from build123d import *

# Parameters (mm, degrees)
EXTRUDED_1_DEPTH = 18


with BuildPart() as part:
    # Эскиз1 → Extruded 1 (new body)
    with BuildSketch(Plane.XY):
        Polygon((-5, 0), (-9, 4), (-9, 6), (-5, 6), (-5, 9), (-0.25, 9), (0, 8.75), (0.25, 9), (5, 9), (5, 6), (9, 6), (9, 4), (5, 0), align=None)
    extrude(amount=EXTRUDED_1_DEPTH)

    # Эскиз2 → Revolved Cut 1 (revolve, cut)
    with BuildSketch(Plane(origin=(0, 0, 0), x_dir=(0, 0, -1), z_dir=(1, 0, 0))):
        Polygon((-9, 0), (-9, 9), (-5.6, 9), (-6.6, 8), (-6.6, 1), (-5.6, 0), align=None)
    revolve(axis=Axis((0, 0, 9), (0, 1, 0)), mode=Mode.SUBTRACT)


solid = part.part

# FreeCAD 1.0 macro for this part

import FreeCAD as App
import Part
import Sketcher

V = App.Vector
Q = App.Units.Quantity


def add_polygon(sketch, points):
    """Adds a closed chain of lines whose ends are joined by coincident constraints."""
    first, n = sketch.GeometryCount, len(points)
    for a, b in zip(points, points[1:] + points[:1]):
        sketch.addGeometry(Part.LineSegment(App.Vector(*a, 0), App.Vector(*b, 0)), False)
    for i in range(n):
        sketch.addConstraint(Sketcher.Constraint("Coincident", first + i, 2, first + (i + 1) % n, 1))

doc = App.newDocument("Part")
body = doc.addObject("PartDesign::Body", "Body")

# Sketch on XY plane
sketch1 = body.newObject("Sketcher::SketchObject", "Sketch")
sketch1.AttachmentSupport = (doc.getObject("XY_Plane"), [""])
sketch1.MapMode = "FlatFace"
add_polygon(sketch1, [(-9, 4), (-5, 0), (5, 0), (9, 4), (9, 6), (5, 6), (5, 9), (0.25, 9), (0, 8.75), (-0.25, 9), (-5, 9), (-5, 6), (-9, 6)])  # lines 0-12
sketch1.addConstraint([
    Sketcher.Constraint("Horizontal", 1),
    Sketcher.Constraint("Vertical", 3),
    Sketcher.Constraint("Horizontal", 4),
    Sketcher.Constraint("Vertical", 5),
    Sketcher.Constraint("Horizontal", 6),
    Sketcher.Constraint("Horizontal", 9),
    Sketcher.Constraint("Vertical", 10),
    Sketcher.Constraint("Horizontal", 11),
    Sketcher.Constraint("Vertical", 12),
    Sketcher.Constraint("Symmetric", 0, 2, 1, 2, -1, 1),
    Sketcher.Constraint("Symmetric", 6, 2, 8, 2, -2),
    Sketcher.Constraint("Symmetric", 4, 2, 10, 2, -2),
    Sketcher.Constraint("Symmetric", 2, 2, 12, 2, -2),
    Sketcher.Constraint("PointOnObject", 7, 2, -2),
    Sketcher.Constraint("Perpendicular", 0, 2),
    Sketcher.Constraint("Parallel", 2, 7),
    Sketcher.Constraint("Vertical", 1, 2, 4, 2),
    Sketcher.Constraint("DistanceX", 1, 1, 1, 2, Q("10 mm")),
    Sketcher.Constraint("DistanceX", 4, 2, 4, 1, Q("4 mm")),
    Sketcher.Constraint("DistanceY", 3, 1, 3, 2, Q("2 mm")),
    Sketcher.Constraint("DistanceY", 5, 1, 5, 2, Q("3 mm")),
    Sketcher.Constraint("DistanceX", 6, 2, 6, 1, Q("4.75 mm")),
])
pad1 = body.newObject("PartDesign::Pad", "Pad")
pad1.Profile = sketch1
pad1.Length = 18

# Sketch on YZ plane
sketch2 = body.newObject("Sketcher::SketchObject", "Sketch001")
sketch2.AttachmentSupport = (doc.getObject("YZ_Plane"), [""])
sketch2.MapMode = "FlatFace"
add_polygon(sketch2, [(9, 9), (0, 9), (0, 5.6), (1, 6.6), (8, 6.6), (9, 5.6)])  # lines 0-5
sketch2.addGeometry(Part.LineSegment(V(0, 9, 0), V(9, 9, 0)), True)  # axis
sketch2.addConstraint([
    Sketcher.Constraint("Horizontal", 0),
    Sketcher.Constraint("Vertical", 1),
    Sketcher.Constraint("Horizontal", 3),
    Sketcher.Constraint("Vertical", 5),
    Sketcher.Constraint("Horizontal", 6),
    Sketcher.Constraint("Coincident", 6, 1, 0, 2),
    Sketcher.Constraint("PointOnObject", 0, 2, -2),
    Sketcher.Constraint("Perpendicular", 2, 4),
    Sketcher.Constraint("Horizontal", 1, 2, 4, 2),
    Sketcher.Constraint("Vertical", 4, 2, 6, 2),
    Sketcher.Constraint("Equal", 2, 4),
    Sketcher.Constraint("DistanceX", 0, 2, 0, 1, Q("9 mm")),
    Sketcher.Constraint("DistanceX", 3, 1, 3, 2, Q("7 mm")),
    Sketcher.Constraint("DistanceY", 1, 2, 1, 1, Q("3.4 mm")),
    Sketcher.Constraint("DistanceY", -1, 1, 0, 2, Q("9 mm")),
])
groove = body.newObject("PartDesign::Groove", "Groove")
groove.Profile = sketch2
groove.ReferenceAxis = (sketch2, ["Axis0"])
groove.Angle = 360

doc.recompute()
